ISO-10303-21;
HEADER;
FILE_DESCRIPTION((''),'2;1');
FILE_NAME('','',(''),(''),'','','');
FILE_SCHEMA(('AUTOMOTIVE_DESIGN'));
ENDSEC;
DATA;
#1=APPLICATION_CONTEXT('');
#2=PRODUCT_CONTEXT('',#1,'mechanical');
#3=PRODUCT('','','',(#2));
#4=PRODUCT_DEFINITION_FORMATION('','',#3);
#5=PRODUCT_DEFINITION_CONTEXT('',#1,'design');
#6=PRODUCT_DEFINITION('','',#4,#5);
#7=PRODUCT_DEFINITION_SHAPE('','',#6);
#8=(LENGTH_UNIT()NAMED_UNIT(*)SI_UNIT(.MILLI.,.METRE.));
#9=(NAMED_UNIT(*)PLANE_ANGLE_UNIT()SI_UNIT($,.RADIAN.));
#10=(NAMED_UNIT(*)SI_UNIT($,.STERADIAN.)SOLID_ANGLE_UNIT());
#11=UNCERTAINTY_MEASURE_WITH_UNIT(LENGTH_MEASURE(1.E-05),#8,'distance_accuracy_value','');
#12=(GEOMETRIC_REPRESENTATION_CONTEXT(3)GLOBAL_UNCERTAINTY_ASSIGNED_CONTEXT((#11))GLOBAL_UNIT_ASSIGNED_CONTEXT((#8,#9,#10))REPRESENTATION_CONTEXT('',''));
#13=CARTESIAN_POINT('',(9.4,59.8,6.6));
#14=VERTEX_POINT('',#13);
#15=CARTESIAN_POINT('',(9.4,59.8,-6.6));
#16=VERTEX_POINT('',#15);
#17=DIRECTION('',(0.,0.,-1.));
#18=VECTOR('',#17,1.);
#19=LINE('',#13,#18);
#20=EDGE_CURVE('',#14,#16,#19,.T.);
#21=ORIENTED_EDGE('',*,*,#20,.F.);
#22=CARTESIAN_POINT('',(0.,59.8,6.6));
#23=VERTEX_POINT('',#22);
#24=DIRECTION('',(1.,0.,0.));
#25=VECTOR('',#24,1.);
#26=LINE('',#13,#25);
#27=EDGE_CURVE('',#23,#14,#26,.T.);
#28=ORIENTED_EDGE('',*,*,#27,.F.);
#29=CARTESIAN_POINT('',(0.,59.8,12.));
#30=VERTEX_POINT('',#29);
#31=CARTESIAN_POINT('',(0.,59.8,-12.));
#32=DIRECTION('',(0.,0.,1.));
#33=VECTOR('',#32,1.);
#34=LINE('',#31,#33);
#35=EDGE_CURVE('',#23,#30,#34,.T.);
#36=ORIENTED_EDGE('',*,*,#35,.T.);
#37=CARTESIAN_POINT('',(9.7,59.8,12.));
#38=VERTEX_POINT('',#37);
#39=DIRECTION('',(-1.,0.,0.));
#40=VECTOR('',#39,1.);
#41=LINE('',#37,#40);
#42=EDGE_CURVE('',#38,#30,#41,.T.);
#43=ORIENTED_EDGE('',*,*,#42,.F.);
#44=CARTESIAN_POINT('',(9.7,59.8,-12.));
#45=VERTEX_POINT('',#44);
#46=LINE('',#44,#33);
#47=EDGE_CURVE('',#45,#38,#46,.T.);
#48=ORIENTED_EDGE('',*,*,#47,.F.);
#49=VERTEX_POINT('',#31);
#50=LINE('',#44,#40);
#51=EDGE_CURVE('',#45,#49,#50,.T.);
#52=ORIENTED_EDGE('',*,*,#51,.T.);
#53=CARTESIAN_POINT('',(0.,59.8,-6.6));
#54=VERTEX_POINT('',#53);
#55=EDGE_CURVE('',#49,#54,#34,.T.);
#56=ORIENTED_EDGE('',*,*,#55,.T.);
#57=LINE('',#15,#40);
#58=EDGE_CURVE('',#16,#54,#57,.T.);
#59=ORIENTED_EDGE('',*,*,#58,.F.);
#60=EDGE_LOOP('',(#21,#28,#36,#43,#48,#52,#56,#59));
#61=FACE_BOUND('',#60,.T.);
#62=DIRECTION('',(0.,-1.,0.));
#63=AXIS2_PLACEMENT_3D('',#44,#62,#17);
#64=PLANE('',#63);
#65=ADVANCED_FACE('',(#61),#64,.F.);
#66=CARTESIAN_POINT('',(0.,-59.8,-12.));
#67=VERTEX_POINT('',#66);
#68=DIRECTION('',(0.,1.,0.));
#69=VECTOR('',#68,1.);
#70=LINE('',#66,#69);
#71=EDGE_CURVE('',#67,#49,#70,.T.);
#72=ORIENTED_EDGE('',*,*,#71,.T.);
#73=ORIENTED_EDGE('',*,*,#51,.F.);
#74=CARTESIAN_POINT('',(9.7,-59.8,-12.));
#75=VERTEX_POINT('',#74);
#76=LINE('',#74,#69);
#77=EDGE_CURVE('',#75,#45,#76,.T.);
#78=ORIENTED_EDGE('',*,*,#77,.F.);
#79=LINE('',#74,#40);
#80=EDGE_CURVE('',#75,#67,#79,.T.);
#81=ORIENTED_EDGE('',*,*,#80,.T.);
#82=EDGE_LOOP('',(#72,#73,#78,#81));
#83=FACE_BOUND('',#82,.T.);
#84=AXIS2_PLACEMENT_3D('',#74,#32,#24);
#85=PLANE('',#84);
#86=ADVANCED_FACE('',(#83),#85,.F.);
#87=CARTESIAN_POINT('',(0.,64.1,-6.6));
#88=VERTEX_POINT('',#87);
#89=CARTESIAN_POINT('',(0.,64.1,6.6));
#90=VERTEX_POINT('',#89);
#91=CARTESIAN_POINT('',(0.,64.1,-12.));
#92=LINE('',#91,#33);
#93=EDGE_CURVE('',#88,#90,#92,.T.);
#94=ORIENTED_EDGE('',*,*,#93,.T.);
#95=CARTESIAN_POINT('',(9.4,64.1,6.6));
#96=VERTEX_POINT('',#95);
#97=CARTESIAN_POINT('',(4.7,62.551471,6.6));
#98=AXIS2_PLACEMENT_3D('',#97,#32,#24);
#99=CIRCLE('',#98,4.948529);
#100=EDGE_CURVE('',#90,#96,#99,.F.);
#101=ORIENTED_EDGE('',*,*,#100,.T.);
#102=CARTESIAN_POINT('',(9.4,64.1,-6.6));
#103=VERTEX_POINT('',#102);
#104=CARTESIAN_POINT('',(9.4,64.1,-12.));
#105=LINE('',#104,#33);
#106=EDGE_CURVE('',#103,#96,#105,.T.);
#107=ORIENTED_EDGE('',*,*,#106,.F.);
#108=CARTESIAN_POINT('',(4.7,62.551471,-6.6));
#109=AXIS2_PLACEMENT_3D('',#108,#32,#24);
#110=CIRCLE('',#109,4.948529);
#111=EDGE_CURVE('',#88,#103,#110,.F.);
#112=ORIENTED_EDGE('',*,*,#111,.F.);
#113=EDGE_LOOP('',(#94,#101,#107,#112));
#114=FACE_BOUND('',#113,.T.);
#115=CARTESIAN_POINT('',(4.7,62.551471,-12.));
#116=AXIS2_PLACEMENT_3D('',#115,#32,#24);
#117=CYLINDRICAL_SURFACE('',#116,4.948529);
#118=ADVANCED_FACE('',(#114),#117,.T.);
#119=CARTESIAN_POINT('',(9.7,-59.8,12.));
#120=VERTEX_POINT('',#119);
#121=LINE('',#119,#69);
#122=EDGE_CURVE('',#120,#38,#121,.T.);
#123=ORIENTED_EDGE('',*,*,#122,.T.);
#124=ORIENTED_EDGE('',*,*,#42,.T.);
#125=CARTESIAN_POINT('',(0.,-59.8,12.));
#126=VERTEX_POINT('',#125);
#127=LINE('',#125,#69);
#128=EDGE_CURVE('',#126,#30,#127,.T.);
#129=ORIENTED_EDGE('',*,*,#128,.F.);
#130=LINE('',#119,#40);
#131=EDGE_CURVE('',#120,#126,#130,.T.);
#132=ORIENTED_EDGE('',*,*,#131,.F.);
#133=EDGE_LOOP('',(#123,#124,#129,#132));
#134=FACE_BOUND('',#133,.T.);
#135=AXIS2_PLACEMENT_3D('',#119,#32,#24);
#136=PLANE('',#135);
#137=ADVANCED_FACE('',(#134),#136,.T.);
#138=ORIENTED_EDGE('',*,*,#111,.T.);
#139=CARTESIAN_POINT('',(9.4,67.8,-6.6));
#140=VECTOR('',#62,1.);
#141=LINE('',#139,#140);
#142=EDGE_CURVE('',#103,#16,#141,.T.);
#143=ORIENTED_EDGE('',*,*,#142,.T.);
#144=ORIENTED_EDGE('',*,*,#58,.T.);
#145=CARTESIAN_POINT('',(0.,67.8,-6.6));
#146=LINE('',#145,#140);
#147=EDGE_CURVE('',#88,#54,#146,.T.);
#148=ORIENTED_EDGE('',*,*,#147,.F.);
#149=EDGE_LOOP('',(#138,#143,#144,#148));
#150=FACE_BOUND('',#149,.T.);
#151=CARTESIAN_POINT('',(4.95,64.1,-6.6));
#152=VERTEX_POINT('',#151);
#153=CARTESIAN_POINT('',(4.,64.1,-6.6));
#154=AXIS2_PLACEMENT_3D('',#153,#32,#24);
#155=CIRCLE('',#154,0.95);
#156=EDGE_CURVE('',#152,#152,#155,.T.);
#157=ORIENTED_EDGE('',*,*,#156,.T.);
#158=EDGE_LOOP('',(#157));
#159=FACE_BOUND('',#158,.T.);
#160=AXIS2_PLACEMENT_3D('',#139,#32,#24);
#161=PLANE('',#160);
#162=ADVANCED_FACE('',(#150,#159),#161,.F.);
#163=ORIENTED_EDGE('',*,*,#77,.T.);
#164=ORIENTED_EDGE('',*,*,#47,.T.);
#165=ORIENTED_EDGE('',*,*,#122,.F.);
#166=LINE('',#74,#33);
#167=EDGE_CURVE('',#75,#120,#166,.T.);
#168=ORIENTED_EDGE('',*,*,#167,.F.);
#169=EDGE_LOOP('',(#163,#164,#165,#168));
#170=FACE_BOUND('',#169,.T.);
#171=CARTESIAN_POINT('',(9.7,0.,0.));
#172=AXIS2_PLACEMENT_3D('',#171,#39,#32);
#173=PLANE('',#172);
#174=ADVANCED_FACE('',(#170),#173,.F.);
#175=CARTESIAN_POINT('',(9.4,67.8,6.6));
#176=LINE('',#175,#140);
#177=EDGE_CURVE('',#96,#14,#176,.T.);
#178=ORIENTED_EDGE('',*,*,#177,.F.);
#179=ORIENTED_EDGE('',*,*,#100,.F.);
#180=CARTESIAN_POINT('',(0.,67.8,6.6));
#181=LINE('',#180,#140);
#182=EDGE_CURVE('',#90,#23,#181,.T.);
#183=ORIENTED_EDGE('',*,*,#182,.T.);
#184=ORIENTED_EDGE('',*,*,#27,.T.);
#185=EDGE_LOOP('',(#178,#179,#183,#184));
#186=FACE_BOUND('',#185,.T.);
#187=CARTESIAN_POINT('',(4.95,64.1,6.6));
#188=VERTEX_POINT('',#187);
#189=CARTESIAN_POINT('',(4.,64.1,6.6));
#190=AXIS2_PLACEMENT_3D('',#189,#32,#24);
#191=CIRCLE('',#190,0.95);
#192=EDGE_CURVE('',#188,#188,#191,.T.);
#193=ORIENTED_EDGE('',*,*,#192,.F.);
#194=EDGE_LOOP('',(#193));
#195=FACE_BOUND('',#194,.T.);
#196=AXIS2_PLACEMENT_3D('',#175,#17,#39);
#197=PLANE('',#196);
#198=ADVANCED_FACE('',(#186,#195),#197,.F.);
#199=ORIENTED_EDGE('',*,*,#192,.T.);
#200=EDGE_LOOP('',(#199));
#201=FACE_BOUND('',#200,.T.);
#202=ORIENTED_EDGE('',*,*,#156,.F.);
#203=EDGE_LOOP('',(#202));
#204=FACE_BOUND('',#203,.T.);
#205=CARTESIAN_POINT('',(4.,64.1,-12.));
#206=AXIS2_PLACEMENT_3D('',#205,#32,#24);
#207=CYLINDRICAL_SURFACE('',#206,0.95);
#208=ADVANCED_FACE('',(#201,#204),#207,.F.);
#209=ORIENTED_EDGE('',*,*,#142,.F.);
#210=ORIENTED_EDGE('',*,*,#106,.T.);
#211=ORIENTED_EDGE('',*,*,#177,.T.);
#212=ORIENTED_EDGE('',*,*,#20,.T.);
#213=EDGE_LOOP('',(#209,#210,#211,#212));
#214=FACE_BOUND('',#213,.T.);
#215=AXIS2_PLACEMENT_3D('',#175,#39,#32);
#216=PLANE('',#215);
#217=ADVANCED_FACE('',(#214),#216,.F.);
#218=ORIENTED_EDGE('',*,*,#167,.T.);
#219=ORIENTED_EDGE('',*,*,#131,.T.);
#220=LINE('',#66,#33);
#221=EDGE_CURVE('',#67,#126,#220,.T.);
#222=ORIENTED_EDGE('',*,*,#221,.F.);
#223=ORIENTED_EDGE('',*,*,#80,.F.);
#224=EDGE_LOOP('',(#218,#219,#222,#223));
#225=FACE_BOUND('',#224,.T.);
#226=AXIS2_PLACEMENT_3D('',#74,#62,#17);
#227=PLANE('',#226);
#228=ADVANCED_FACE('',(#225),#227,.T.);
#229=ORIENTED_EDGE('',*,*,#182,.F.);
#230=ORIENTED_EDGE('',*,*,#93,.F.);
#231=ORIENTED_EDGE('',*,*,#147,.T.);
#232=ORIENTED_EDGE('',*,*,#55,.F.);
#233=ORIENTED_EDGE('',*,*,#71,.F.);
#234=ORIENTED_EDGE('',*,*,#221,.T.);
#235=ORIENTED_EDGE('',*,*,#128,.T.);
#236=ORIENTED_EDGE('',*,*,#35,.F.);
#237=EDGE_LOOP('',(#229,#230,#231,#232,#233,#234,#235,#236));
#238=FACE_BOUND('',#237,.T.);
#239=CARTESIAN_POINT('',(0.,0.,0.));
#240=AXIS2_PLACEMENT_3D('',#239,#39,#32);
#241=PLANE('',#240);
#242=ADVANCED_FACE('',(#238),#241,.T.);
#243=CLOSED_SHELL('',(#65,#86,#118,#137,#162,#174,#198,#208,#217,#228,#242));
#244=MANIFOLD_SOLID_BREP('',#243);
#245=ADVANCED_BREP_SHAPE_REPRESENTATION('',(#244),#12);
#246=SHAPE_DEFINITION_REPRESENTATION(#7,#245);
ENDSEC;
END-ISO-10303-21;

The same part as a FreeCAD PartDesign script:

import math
import FreeCAD as App
import Part
import Sketcher
from FreeCAD import Vector


def add_polygon(sketch, points):
    """Adds a closed chain of lines whose ends are joined by coincident constraints."""
    first, n = sketch.GeometryCount, len(points)
    for a, b in zip(points, points[1:] + points[:1]):
        sketch.addGeometry(Part.LineSegment(App.Vector(*a, 0), App.Vector(*b, 0)), False)
    for i in range(n):
        sketch.addConstraint(Sketcher.Constraint("Coincident", first + i, 2, first + (i + 1) % n, 1))

doc = App.newDocument("Part")
body = doc.addObject("PartDesign::Body", "Body")

# Sketch on YZ plane
sketch1 = doc.addObject("Sketcher::SketchObject", "Sketch")
body.addObject(sketch1)
sketch1.AttachmentSupport = (doc.YZ_Plane, [""])
sketch1.MapMode = "FlatFace"
add_polygon(sketch1, [(-60, 12), (-60, -12), (60, -12), (60, 12)])  # lines 0-3
sketch1.addConstraint([
    Sketcher.Constraint("Vertical", 0),
    Sketcher.Constraint("Horizontal", 1),
    Sketcher.Constraint("Vertical", 2),
    Sketcher.Constraint("Horizontal", 3),
    Sketcher.Constraint("Symmetric", 0, 2, 2, 2, -1, 1),
    Sketcher.Constraint("DistanceY", 0, 2, 0, 1, 24.0),
    Sketcher.Constraint("DistanceX", 1, 1, 1, 2, 119.6),
])
pad1 = doc.addObject("PartDesign::Pad", "Pad")
body.addObject(pad1)
pad1.Profile = sketch1
pad1.Length = 9.7

# Sketch on XZ plane
sketch2 = doc.addObject("Sketcher::SketchObject", "Sketch001")
body.addObject(sketch2)
sketch2.AttachmentSupport = (doc.XZ_Plane, [""])
sketch2.MapMode = "FlatFace"
sketch2.AttachmentOffset = App.Placement(Vector(0, 0, -59.8), App.Rotation())
add_polygon(sketch2, [(9, 7), (9, -7), (0, -7), (0, 7)])  # lines 0-3
sketch2.addConstraint([
    Sketcher.Constraint("Vertical", 0),
    Sketcher.Constraint("Horizontal", 1),
    Sketcher.Constraint("Vertical", 2),
    Sketcher.Constraint("Horizontal", 3),
    Sketcher.Constraint("Symmetric", 1, 2, 2, 2, -1, 1),
    Sketcher.Constraint("DistanceX", 1, 2, 1, 1, 9.4),
    Sketcher.Constraint("DistanceY", 0, 2, 0, 1, 13.2),
])
pad2 = doc.addObject("PartDesign::Pad", "Pad001")
body.addObject(pad2)
pad2.Profile = sketch2
pad2.Length = 8
pad2.Reversed = True

# Sketch on XY plane
sketch3 = doc.addObject("Sketcher::SketchObject", "Sketch002")
body.addObject(sketch3)
sketch3.AttachmentSupport = (doc.XY_Plane, [""])
sketch3.MapMode = "FlatFace"
sketch3.AttachmentOffset = App.Placement(Vector(0, 0, 6.6), App.Rotation())
sketch3.addGeometry([
    Part.LineSegment(Vector(0, 67.8, 0), Vector(0, 64.1, 0)),  # 0
    Part.ArcOfCircle(Part.Circle(Vector(4.7, 62.6, 0), Vector(0, 0, 1), 4.9), math.radians(18), math.radians(162)),  # 1
    Part.LineSegment(Vector(9.4, 64.1, 0), Vector(9.4, 67.8, 0)),  # 2
    Part.LineSegment(Vector(9.4, 67.8, 0), Vector(0, 67.8, 0)),  # 3
    Part.Circle(Vector(4, 64.1, 0), Vector(0, 0, 1), 0.9),  # 4
], False)
sketch3.addConstraint([
    Sketcher.Constraint("Coincident", 0, 2, 1, 2),
    Sketcher.Constraint("Coincident", 1, 1, 2, 1),
    Sketcher.Constraint("Coincident", 2, 2, 3, 1),
    Sketcher.Constraint("Coincident", 3, 2, 0, 1),
    Sketcher.Constraint("Vertical", 0),
    Sketcher.Constraint("Vertical", 2),
    Sketcher.Constraint("Horizontal", 3),
    Sketcher.Constraint("PointOnObject", 0, 2, -2),
    Sketcher.Constraint("Horizontal", 4, 3, 0, 2),
    Sketcher.Constraint("Horizontal", 0, 2, 1, 1),
    Sketcher.Constraint("Diameter", 4, 1.9),
    Sketcher.Constraint("DistanceX", 3, 2, 3, 1, 9.4),
    Sketcher.Constraint("DistanceY", 0, 2, 0, 1, 3.7),
    Sketcher.Constraint("DistanceX", -1, 1, 4, 3, 4.0),
    Sketcher.Constraint("DistanceY", -1, 1, 4, 3, 64.1),
    Sketcher.Constraint("Radius", 1, 4.948529),
])
pocket1 = doc.addObject("PartDesign::Pocket", "Pocket")
body.addObject(pocket1)
pocket1.Profile = sketch3
pocket1.Type = "ThroughAll"

doc.recompute()
